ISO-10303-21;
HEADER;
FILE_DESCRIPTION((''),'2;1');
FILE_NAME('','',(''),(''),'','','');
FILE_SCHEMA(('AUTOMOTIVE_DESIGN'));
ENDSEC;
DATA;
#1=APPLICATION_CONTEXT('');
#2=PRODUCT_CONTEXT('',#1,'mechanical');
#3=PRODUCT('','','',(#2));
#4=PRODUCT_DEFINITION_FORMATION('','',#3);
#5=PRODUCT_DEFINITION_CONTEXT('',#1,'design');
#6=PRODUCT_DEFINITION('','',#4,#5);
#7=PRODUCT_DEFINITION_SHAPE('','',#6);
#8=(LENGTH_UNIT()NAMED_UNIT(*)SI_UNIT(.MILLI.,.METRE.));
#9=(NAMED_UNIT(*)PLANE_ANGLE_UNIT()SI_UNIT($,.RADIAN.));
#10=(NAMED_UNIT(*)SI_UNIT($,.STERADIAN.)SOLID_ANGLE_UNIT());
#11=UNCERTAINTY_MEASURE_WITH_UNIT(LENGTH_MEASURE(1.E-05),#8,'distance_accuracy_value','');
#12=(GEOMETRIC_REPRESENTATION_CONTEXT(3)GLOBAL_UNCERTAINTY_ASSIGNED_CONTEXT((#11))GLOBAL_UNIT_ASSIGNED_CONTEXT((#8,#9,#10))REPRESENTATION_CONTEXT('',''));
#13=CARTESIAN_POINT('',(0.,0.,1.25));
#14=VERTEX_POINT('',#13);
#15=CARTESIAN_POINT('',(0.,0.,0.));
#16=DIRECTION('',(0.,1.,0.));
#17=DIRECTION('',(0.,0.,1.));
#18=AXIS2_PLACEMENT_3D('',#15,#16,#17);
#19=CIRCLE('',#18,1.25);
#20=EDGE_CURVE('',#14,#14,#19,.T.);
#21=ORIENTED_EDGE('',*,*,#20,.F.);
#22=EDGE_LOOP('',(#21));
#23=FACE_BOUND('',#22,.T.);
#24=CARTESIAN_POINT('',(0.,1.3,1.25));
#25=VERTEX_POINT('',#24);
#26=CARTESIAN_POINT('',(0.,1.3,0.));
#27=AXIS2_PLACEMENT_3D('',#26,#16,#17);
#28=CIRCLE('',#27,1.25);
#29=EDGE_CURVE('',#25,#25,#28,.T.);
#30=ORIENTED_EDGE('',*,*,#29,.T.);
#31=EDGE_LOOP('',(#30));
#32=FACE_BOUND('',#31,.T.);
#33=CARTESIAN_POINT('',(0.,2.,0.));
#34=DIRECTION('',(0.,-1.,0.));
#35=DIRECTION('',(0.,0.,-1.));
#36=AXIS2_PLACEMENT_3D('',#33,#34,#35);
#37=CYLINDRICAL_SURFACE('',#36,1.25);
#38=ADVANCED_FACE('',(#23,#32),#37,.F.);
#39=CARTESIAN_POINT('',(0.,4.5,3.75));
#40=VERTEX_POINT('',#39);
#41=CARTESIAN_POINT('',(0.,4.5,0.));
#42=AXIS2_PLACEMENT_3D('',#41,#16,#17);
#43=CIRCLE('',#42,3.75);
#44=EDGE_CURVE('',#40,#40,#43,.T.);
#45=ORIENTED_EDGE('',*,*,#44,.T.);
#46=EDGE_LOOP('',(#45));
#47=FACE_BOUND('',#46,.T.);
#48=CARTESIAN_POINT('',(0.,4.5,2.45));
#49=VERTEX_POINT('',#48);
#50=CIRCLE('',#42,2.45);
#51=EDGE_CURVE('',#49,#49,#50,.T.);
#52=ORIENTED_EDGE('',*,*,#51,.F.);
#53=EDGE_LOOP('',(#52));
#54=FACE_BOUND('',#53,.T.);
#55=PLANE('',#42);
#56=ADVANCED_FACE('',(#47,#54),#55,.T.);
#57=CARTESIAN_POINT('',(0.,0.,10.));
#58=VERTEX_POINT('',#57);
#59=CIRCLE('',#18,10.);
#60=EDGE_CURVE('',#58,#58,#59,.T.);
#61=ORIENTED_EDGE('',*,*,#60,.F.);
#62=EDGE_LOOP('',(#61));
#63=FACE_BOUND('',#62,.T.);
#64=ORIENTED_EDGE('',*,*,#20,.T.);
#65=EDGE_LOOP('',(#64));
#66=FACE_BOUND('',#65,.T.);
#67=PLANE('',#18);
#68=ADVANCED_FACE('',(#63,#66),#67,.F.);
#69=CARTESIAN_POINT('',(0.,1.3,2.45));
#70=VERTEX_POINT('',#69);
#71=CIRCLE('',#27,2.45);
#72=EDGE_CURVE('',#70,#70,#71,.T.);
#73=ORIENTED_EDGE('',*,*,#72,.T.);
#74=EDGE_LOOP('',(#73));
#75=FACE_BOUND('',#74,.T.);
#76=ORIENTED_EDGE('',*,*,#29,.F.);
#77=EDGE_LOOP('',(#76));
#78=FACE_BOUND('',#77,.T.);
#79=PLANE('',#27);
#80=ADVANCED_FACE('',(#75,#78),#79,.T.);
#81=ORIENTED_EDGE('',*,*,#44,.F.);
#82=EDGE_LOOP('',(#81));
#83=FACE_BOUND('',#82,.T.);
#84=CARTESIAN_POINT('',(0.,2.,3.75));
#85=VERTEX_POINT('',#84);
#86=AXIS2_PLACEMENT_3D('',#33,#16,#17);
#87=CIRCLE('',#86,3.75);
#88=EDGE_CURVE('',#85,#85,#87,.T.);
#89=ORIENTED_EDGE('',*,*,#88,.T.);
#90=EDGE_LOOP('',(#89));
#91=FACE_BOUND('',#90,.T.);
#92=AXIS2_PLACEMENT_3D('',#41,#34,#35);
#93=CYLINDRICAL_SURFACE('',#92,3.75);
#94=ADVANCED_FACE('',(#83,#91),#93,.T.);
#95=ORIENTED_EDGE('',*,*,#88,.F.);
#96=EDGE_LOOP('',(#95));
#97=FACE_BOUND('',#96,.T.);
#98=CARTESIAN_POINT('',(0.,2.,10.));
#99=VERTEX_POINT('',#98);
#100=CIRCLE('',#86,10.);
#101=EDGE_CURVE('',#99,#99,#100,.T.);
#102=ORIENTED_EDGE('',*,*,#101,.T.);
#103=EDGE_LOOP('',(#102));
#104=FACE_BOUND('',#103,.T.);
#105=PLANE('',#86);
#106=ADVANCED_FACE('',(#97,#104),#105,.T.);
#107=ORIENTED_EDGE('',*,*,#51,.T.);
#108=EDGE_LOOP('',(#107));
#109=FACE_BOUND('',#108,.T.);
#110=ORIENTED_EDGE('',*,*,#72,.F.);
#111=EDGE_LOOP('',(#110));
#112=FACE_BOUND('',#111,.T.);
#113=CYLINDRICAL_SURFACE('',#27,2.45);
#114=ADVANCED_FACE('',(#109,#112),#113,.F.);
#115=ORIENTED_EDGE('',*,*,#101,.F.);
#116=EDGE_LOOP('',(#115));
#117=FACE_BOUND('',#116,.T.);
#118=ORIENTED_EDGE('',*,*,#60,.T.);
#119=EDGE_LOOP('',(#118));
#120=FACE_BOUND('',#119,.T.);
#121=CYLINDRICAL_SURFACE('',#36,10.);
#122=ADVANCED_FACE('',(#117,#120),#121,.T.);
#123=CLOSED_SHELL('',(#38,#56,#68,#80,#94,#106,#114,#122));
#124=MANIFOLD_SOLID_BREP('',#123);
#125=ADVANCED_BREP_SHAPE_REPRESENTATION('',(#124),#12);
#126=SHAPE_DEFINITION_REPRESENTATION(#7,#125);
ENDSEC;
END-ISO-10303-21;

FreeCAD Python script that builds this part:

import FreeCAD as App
import Part
import Sketcher
from FreeCAD import Vector
Q = App.Units.Quantity

doc = App.newDocument("Part")
body = doc.addObject("PartDesign::Body", "Body")

sketch1 = body.newObject("Sketcher::SketchObject", "Sketch")
sketch1.AttachmentSupport = (doc.getObject("XZ_Plane"), [""])
sketch1.MapMode = "FlatFace"
sketch1.addGeometry(Part.Circle(Vector(0, 0, 0), Vector(0, 0, 1), 10), False)
sketch1.addGeometry(Part.Circle(Vector(0, 0, 0), Vector(0, 0, 1), 1.2), False)
sketch1.addConstraint(Sketcher.Constraint("Coincident", 0, 3, -1, 1))
sketch1.addConstraint(Sketcher.Constraint("Coincident", 1, 3, -1, 1))
sketch1.addConstraint(Sketcher.Constraint("Diameter", 0, Q("20 mm")))
sketch1.addConstraint(Sketcher.Constraint("Diameter", 1, Q("2.5 mm")))
pad1 = body.newObject("PartDesign::Pad", "Pad")
pad1.Profile = sketch1
pad1.Length = 2
pad1.Reversed = True

sketch2 = body.newObject("Sketcher::SketchObject", "Sketch001")
sketch2.AttachmentSupport = (doc.getObject("XZ_Plane"), [""])
sketch2.MapMode = "FlatFace"
sketch2.AttachmentOffset = App.Placement(Vector(0, 0, -2), App.Rotation())
sketch2.addGeometry(Part.Circle(Vector(0, 0, 0), Vector(0, 0, 1), 3.8), False)
sketch2.addConstraint(Sketcher.Constraint("Coincident", 0, 3, -1, 1))
sketch2.addConstraint(Sketcher.Constraint("Diameter", 0, Q("7.5 mm")))
pad2 = body.newObject("PartDesign::Pad", "Pad001")
pad2.Profile = sketch2
pad2.Length = 2.5
pad2.Reversed = True

sketch3 = body.newObject("Sketcher::SketchObject", "Sketch002")
sketch3.AttachmentSupport = (doc.getObject("XZ_Plane"), [""])
sketch3.MapMode = "FlatFace"
sketch3.AttachmentOffset = App.Placement(Vector(0, 0, -4.5), App.Rotation())
sketch3.addGeometry(Part.Circle(Vector(0, 0, 0), Vector(0, 0, 1), 2.5), False)
sketch3.addConstraint(Sketcher.Constraint("Coincident", 0, 3, -1, 1))
sketch3.addConstraint(Sketcher.Constraint("Diameter", 0, Q("4.9 mm")))
pocket1 = body.newObject("PartDesign::Pocket", "Pocket")
pocket1.Profile = sketch3
pocket1.Length = 3.2
pocket1.Reversed = True

doc.recompute()
